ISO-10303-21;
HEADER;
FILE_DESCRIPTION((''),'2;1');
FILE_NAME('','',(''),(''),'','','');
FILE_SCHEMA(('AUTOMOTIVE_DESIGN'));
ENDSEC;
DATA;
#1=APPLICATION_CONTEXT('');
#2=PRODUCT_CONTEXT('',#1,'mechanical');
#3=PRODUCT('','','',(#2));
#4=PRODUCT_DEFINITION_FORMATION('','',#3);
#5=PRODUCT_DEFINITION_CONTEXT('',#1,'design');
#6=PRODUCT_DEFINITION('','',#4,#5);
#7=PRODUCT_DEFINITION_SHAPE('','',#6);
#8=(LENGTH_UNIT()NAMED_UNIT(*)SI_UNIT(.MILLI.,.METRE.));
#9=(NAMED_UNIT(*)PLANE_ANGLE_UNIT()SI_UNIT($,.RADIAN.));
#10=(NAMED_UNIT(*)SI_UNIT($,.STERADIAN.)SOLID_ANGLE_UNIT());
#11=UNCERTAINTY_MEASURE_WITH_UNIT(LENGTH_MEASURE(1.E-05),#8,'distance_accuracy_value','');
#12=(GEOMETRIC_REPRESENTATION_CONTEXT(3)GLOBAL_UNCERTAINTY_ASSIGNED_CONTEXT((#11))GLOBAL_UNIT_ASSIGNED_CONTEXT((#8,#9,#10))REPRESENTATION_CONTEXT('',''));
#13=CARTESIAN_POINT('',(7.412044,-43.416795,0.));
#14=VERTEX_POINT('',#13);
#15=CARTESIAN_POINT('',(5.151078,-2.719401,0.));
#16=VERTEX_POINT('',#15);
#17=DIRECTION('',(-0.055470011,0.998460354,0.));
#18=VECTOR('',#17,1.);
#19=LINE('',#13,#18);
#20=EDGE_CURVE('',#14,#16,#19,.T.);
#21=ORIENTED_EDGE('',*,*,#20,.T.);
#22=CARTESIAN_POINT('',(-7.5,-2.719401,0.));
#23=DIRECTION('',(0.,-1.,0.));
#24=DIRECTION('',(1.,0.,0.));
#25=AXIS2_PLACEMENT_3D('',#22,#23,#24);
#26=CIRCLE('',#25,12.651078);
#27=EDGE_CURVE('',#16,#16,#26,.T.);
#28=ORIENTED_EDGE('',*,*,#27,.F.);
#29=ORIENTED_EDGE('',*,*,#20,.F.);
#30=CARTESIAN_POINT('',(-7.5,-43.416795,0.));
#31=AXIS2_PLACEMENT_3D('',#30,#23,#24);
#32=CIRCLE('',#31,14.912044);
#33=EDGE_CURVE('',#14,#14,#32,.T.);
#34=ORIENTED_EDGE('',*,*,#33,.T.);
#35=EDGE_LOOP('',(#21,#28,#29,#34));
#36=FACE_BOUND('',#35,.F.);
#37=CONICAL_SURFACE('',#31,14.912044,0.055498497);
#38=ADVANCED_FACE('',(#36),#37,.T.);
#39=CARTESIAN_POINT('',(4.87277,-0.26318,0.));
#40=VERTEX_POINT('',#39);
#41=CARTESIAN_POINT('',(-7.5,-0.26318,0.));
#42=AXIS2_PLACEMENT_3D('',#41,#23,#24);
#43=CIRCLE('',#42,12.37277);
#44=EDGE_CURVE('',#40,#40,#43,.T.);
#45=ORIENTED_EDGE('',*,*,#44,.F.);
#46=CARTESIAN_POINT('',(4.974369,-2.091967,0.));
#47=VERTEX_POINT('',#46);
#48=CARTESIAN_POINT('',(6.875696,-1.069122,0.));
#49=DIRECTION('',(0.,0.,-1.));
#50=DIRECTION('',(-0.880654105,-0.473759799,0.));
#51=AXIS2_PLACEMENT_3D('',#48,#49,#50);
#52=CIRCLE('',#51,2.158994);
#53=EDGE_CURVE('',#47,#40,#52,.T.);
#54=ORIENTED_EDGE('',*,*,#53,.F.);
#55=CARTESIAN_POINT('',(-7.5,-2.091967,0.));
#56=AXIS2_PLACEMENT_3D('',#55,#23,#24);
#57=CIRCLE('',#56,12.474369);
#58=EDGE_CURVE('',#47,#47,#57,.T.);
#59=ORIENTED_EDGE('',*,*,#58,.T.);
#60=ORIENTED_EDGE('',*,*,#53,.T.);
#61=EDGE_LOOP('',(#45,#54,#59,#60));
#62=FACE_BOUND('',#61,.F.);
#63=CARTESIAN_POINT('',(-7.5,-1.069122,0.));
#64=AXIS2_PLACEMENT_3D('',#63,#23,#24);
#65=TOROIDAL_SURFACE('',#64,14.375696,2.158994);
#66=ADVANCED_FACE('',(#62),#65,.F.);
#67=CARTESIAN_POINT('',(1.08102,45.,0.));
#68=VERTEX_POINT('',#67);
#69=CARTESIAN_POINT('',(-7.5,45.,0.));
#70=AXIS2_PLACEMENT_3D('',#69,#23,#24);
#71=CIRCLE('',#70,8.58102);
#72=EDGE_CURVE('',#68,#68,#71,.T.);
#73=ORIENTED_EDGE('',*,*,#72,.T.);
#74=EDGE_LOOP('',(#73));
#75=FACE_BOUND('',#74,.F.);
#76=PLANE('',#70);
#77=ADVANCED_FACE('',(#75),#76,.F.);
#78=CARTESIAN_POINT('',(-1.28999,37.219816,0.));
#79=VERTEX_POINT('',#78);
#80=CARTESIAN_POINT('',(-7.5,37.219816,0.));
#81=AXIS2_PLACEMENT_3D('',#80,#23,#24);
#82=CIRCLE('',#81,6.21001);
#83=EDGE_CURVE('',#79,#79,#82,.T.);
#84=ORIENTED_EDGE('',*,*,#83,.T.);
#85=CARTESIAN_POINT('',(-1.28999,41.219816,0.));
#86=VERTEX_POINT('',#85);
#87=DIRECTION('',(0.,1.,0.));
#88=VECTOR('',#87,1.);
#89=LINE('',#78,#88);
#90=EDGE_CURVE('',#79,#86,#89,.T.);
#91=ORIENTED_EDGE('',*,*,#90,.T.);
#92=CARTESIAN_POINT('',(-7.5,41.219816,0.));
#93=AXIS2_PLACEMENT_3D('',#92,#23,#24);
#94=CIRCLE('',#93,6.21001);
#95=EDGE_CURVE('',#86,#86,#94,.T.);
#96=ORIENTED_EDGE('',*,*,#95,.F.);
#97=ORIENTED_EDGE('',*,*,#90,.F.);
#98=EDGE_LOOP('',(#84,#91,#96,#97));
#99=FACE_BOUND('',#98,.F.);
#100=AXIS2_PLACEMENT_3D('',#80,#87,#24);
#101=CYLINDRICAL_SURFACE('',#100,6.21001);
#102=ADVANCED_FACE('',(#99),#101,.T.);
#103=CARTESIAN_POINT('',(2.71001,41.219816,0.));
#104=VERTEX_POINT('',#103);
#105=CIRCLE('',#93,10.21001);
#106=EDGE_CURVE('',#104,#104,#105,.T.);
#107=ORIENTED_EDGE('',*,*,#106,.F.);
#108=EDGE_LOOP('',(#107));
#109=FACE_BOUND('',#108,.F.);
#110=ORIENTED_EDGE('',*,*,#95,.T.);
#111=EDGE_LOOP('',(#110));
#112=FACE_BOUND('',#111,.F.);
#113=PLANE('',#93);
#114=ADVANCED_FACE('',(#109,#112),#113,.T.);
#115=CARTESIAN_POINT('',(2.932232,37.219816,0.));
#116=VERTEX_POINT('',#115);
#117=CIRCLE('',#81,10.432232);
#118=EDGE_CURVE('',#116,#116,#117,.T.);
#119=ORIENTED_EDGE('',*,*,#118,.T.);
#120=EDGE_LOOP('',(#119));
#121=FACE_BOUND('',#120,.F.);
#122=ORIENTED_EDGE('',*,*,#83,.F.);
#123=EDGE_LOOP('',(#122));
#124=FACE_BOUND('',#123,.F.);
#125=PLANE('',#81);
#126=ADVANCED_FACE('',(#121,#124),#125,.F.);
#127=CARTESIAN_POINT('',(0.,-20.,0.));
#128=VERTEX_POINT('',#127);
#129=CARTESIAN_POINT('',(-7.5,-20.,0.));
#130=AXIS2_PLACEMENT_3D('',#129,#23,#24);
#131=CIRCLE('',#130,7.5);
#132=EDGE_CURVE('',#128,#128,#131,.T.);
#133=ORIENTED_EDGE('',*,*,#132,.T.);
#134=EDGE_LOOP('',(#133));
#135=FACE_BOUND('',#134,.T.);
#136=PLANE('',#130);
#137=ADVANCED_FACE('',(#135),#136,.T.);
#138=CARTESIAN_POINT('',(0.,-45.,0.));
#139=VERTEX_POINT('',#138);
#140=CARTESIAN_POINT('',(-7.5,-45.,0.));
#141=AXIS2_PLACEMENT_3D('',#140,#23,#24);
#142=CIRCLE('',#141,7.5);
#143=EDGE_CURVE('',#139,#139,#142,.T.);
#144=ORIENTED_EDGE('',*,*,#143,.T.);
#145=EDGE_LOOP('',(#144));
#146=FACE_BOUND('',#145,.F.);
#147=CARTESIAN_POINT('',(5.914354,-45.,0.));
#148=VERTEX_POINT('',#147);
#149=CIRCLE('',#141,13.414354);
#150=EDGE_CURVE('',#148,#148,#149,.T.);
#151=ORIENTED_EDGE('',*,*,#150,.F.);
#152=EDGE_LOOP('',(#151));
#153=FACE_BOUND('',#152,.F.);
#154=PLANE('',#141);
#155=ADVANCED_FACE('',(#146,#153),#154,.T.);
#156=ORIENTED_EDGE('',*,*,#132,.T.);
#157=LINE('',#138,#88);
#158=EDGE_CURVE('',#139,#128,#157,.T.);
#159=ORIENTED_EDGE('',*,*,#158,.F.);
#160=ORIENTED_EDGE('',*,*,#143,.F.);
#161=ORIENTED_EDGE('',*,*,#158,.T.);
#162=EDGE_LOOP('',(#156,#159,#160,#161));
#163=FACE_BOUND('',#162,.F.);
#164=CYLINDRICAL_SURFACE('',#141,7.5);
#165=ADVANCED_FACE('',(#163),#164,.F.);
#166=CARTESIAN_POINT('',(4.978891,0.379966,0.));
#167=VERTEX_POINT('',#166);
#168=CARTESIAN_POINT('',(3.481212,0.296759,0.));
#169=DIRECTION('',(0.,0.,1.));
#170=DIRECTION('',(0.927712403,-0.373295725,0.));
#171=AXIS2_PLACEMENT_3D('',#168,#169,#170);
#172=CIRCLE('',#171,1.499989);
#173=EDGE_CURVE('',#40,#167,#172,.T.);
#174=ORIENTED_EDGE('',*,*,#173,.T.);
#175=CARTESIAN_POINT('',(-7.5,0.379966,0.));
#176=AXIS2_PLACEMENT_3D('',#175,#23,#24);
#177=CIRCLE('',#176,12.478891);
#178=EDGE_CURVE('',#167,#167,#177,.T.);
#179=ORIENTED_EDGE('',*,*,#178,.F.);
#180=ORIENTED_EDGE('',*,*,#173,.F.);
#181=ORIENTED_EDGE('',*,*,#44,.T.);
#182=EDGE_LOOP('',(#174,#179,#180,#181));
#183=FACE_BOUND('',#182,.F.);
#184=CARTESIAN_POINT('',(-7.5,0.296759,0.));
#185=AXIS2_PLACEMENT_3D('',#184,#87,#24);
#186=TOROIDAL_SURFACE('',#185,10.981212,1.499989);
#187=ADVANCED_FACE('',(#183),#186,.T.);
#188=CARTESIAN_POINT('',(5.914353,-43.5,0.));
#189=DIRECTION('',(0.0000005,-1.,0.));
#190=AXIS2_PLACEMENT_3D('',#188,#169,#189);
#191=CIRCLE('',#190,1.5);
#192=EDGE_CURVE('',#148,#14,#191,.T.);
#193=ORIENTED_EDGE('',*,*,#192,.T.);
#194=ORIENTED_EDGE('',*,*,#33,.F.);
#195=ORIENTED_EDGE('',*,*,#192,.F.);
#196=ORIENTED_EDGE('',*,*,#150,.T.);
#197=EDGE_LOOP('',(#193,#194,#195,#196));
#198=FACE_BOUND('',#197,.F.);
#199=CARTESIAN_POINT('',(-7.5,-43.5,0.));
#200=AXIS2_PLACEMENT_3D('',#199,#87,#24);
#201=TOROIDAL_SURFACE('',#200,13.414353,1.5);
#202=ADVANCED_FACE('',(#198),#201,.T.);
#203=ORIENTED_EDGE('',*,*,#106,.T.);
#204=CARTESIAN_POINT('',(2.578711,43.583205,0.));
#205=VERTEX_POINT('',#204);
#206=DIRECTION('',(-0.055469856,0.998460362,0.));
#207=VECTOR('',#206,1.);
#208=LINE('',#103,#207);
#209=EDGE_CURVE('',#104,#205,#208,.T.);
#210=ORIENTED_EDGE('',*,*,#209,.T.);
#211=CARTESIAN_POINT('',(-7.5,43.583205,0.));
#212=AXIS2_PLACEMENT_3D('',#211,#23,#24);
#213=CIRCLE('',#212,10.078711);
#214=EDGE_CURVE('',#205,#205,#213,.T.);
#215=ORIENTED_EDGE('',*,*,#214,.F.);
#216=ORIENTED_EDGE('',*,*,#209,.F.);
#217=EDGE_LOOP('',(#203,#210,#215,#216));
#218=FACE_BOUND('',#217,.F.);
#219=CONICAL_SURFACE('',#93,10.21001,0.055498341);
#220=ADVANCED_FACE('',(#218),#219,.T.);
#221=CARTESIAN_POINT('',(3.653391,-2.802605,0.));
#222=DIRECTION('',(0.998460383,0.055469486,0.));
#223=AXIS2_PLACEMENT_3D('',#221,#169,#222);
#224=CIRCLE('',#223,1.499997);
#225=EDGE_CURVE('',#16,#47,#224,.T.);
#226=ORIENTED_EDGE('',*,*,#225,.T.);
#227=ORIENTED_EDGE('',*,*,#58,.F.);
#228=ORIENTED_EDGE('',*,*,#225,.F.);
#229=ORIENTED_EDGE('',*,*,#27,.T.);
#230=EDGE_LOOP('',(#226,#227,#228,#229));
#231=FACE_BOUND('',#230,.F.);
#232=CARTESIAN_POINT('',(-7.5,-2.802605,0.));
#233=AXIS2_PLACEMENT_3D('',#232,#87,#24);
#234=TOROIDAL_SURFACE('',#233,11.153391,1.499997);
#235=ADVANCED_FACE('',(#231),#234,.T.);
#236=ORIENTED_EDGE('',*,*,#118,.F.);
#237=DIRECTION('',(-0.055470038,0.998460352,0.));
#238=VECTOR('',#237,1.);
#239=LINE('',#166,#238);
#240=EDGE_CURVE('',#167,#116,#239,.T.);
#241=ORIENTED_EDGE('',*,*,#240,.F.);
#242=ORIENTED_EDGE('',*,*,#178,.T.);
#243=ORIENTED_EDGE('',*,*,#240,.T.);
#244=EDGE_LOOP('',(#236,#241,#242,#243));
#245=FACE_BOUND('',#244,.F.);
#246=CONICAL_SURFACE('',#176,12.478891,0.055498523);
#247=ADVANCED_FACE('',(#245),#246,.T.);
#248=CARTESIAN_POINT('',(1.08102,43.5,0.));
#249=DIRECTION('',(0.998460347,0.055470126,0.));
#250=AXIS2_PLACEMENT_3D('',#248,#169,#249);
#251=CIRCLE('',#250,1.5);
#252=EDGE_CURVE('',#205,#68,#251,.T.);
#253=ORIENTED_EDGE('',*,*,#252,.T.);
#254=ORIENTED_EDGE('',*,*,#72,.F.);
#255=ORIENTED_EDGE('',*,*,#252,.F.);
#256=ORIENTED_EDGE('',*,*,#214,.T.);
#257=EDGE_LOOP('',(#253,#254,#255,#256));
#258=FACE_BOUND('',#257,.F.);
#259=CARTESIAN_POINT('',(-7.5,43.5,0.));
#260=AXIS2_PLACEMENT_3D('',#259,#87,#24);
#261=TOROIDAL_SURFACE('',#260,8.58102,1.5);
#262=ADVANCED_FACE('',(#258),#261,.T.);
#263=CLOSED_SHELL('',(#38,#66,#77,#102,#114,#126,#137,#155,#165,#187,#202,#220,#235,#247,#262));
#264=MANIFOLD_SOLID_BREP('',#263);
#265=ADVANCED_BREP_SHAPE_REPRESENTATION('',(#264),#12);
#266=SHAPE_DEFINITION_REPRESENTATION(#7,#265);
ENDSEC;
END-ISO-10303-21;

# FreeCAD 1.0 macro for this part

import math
import FreeCAD as App
import Part
import Sketcher

doc = App.newDocument("Part")
body = doc.addObject("PartDesign::Body", "Body")

# Sketch on XY plane
sketch1 = body.newObject("Sketcher::SketchObject", "Sketch")
sketch1.AttachmentSupport = (doc.getObject("XY_Plane"), [""])
sketch1.MapMode = "FlatFace"
sketch1.addGeometry(Part.LineSegment(App.Vector(1.08102, 45, 0), App.Vector(-7.5, 45, 0)), False)
sketch1.addGeometry(Part.LineSegment(App.Vector(-7.5, 45, 0), App.Vector(-7.5, -45, 0)), False)
sketch1.addGeometry(Part.LineSegment(App.Vector(-7.5, -45, 0), App.Vector(5.914354, -45, 0)), False)
sketch1.addGeometry(Part.ArcOfCircle(Part.Circle(App.Vector(5.914353, -43.5, 0), App.Vector(0, 0, 1), 1.5), math.radians(-89.999971), math.radians(3.179821)), False)
sketch1.addGeometry(Part.LineSegment(App.Vector(7.412044, -43.416795, 0), App.Vector(5.151078, -2.719401, 0)), False)
sketch1.addGeometry(Part.ArcOfCircle(Part.Circle(App.Vector(3.653391, -2.802605, 0), App.Vector(0, 0, 1), 1.499997), math.radians(3.1798), math.radians(28.278631)), False)
sketch1.addGeometry(Part.ArcOfCircle(Part.Circle(App.Vector(6.875696, -1.069122, 0), App.Vector(0, 0, 1), 2.158994), math.radians(158.081012), math.radians(208.278631)), False)
sketch1.addGeometry(Part.ArcOfCircle(Part.Circle(App.Vector(3.481212, 0.296759, 0), App.Vector(0, 0, 1), 1.499989), math.radians(-21.919017), math.radians(3.179916)), False)
sketch1.addGeometry(Part.LineSegment(App.Vector(4.978891, 0.379966, 0), App.Vector(2.932232, 37.219816, 0)), False)
sketch1.addGeometry(Part.LineSegment(App.Vector(2.932232, 37.219816, 0), App.Vector(-1.28999, 37.219816, 0)), False)
sketch1.addGeometry(Part.LineSegment(App.Vector(-1.28999, 37.219816, 0), App.Vector(-1.28999, 41.219816, 0)), False)
sketch1.addGeometry(Part.LineSegment(App.Vector(-1.28999, 41.219816, 0), App.Vector(2.71001, 41.219816, 0)), False)
sketch1.addGeometry(Part.LineSegment(App.Vector(2.71001, 41.219816, 0), App.Vector(2.578711, 43.583205, 0)), False)
sketch1.addGeometry(Part.ArcOfCircle(Part.Circle(App.Vector(1.08102, 43.5, 0), App.Vector(0, 0, 1), 1.5), math.radians(3.179836), math.radians(90.000011)), False)
sketch1.addGeometry(Part.LineSegment(App.Vector(-7.5, 45, 0), App.Vector(-7.5, -45, 0)), True)  # axis
sketch1.addConstraint(Sketcher.Constraint("Coincident", 0, 2, 1, 1))
sketch1.addConstraint(Sketcher.Constraint("Coincident", 1, 2, 2, 1))
sketch1.addConstraint(Sketcher.Constraint("Coincident", 2, 2, 3, 1))
sketch1.addConstraint(Sketcher.Constraint("Coincident", 3, 2, 4, 1))
sketch1.addConstraint(Sketcher.Constraint("Coincident", 4, 2, 5, 1))
sketch1.addConstraint(Sketcher.Constraint("Coincident", 5, 2, 6, 2))
sketch1.addConstraint(Sketcher.Constraint("Coincident", 6, 1, 7, 1))
sketch1.addConstraint(Sketcher.Constraint("Coincident", 7, 2, 8, 1))
sketch1.addConstraint(Sketcher.Constraint("Coincident", 8, 2, 9, 1))
sketch1.addConstraint(Sketcher.Constraint("Coincident", 9, 2, 10, 1))
sketch1.addConstraint(Sketcher.Constraint("Coincident", 10, 2, 11, 1))
sketch1.addConstraint(Sketcher.Constraint("Coincident", 11, 2, 12, 1))
sketch1.addConstraint(Sketcher.Constraint("Coincident", 12, 2, 13, 1))
sketch1.addConstraint(Sketcher.Constraint("Coincident", 13, 2, 0, 1))
sketch1.addConstraint(Sketcher.Constraint("Horizontal", 0))
sketch1.addConstraint(Sketcher.Constraint("Vertical", 1))
sketch1.addConstraint(Sketcher.Constraint("Horizontal", 2))
sketch1.addConstraint(Sketcher.Constraint("Horizontal", 9))
sketch1.addConstraint(Sketcher.Constraint("Vertical", 10))
sketch1.addConstraint(Sketcher.Constraint("Horizontal", 11))
sketch1.addConstraint(Sketcher.Constraint("Vertical", 14))
sketch1.addConstraint(Sketcher.Constraint("Coincident", 14, 1, 0, 2))
sketch1.addConstraint(Sketcher.Constraint("Radius", 3, 1.5))
sketch1.addConstraint(Sketcher.Constraint("Radius", 13, 1.5))
sketch1.addConstraint(Sketcher.Constraint("DistanceX", 11, 1, 11, 2, 4.0))
sketch1.addConstraint(Sketcher.Constraint("DistanceY", 1, 2, 1, 1, 90.0))
sketch1.addConstraint(Sketcher.Constraint("DistanceY", 10, 1, 10, 2, 4.0))
sketch1.addConstraint(Sketcher.Constraint("DistanceY", 14, 2, 14, 1, 90.0))
sketch1.addConstraint(Sketcher.Constraint("DistanceY", -1, 1, 0, 2, 45.0))
sketch1.addConstraint(Sketcher.Constraint("DistanceX", 0, 2, -1, 1, 7.5))
sketch1.addConstraint(Sketcher.Constraint("Radius", 7, 1.499989))
sketch1.addConstraint(Sketcher.Constraint("Radius", 5, 1.499997))
sketch1.addConstraint(Sketcher.Constraint("Radius", 6, 2.158994))
sketch1.addConstraint(Sketcher.Constraint("DistanceX", 0, 2, 0, 1, 8.58102))
sketch1.addConstraint(Sketcher.Constraint("DistanceY", 4, 2, -1, 1, 2.719401))
sketch1.addConstraint(Sketcher.Constraint("DistanceX", 6, 1, 5, 2, 0.101599))
sketch1.addConstraint(Sketcher.Constraint("DistanceX", 9, 2, 7, 3, 4.771202))
sketch1.addConstraint(Sketcher.Constraint("DistanceX", 12, 2, 11, 2, 0.131299))
sketch1.addConstraint(Sketcher.Constraint("Distance", 4, 40.76015))
sketch1.addConstraint(Sketcher.Constraint("DistanceX", 2, 1, 2, 2, 13.414354))
sketch1.addConstraint(Sketcher.Constraint("DistanceX", 9, 2, 9, 1, 4.222222))
sketch1.addConstraint(Sketcher.Constraint("DistanceX", -1, 1, 5, 3, 3.653391))
sketch1.addConstraint(Sketcher.Constraint("DistanceX", -1, 1, 7, 3, 3.481212))
sketch1.addConstraint(Sketcher.Constraint("DistanceY", -1, 1, 7, 3, 0.296759))
sketch1.addConstraint(Sketcher.Constraint("DistanceX", -1, 1, 13, 3, 1.08102))
sketch1.addConstraint(Sketcher.Constraint("DistanceX", -1, 1, 5, 2, 4.974369))
sketch1.addConstraint(Sketcher.Constraint("DistanceX", -1, 1, 7, 2, 4.978891))
sketch1.addConstraint(Sketcher.Constraint("DistanceY", 6, 3, 7, 3, 1.365882))
sketch1.addConstraint(Sketcher.Constraint("DistanceX", 7, 3, 3, 3, 2.433141))
sketch1.addConstraint(Sketcher.Constraint("DistanceY", 7, 2, 8, 2, 36.83985))
revolution = body.newObject("PartDesign::Revolution", "Revolution")
revolution.Profile = sketch1
revolution.ReferenceAxis = (sketch1, ["Axis0"])
revolution.Angle = 360

# Sketch on XZ plane
sketch2 = body.newObject("Sketcher::SketchObject", "Sketch001")
sketch2.AttachmentSupport = (doc.getObject("XZ_Plane"), [""])
sketch2.MapMode = "FlatFace"
sketch2.AttachmentOffset = App.Placement(App.Vector(0, 0, 45), App.Rotation())
sketch2.addGeometry(Part.Circle(App.Vector(-8, 0, 0), App.Vector(0, 0, 1), 8), False)
sketch2.addConstraint(Sketcher.Constraint("PointOnObject", 0, 3, -1))
sketch2.addConstraint(Sketcher.Constraint("Diameter", 0, 15.0))
sketch2.addConstraint(Sketcher.Constraint("DistanceX", 0, 3, -1, 1, 7.5))
pocket1 = body.newObject("PartDesign::Pocket", "Pocket")
pocket1.Profile = sketch2
pocket1.Length = 25

doc.recompute()
